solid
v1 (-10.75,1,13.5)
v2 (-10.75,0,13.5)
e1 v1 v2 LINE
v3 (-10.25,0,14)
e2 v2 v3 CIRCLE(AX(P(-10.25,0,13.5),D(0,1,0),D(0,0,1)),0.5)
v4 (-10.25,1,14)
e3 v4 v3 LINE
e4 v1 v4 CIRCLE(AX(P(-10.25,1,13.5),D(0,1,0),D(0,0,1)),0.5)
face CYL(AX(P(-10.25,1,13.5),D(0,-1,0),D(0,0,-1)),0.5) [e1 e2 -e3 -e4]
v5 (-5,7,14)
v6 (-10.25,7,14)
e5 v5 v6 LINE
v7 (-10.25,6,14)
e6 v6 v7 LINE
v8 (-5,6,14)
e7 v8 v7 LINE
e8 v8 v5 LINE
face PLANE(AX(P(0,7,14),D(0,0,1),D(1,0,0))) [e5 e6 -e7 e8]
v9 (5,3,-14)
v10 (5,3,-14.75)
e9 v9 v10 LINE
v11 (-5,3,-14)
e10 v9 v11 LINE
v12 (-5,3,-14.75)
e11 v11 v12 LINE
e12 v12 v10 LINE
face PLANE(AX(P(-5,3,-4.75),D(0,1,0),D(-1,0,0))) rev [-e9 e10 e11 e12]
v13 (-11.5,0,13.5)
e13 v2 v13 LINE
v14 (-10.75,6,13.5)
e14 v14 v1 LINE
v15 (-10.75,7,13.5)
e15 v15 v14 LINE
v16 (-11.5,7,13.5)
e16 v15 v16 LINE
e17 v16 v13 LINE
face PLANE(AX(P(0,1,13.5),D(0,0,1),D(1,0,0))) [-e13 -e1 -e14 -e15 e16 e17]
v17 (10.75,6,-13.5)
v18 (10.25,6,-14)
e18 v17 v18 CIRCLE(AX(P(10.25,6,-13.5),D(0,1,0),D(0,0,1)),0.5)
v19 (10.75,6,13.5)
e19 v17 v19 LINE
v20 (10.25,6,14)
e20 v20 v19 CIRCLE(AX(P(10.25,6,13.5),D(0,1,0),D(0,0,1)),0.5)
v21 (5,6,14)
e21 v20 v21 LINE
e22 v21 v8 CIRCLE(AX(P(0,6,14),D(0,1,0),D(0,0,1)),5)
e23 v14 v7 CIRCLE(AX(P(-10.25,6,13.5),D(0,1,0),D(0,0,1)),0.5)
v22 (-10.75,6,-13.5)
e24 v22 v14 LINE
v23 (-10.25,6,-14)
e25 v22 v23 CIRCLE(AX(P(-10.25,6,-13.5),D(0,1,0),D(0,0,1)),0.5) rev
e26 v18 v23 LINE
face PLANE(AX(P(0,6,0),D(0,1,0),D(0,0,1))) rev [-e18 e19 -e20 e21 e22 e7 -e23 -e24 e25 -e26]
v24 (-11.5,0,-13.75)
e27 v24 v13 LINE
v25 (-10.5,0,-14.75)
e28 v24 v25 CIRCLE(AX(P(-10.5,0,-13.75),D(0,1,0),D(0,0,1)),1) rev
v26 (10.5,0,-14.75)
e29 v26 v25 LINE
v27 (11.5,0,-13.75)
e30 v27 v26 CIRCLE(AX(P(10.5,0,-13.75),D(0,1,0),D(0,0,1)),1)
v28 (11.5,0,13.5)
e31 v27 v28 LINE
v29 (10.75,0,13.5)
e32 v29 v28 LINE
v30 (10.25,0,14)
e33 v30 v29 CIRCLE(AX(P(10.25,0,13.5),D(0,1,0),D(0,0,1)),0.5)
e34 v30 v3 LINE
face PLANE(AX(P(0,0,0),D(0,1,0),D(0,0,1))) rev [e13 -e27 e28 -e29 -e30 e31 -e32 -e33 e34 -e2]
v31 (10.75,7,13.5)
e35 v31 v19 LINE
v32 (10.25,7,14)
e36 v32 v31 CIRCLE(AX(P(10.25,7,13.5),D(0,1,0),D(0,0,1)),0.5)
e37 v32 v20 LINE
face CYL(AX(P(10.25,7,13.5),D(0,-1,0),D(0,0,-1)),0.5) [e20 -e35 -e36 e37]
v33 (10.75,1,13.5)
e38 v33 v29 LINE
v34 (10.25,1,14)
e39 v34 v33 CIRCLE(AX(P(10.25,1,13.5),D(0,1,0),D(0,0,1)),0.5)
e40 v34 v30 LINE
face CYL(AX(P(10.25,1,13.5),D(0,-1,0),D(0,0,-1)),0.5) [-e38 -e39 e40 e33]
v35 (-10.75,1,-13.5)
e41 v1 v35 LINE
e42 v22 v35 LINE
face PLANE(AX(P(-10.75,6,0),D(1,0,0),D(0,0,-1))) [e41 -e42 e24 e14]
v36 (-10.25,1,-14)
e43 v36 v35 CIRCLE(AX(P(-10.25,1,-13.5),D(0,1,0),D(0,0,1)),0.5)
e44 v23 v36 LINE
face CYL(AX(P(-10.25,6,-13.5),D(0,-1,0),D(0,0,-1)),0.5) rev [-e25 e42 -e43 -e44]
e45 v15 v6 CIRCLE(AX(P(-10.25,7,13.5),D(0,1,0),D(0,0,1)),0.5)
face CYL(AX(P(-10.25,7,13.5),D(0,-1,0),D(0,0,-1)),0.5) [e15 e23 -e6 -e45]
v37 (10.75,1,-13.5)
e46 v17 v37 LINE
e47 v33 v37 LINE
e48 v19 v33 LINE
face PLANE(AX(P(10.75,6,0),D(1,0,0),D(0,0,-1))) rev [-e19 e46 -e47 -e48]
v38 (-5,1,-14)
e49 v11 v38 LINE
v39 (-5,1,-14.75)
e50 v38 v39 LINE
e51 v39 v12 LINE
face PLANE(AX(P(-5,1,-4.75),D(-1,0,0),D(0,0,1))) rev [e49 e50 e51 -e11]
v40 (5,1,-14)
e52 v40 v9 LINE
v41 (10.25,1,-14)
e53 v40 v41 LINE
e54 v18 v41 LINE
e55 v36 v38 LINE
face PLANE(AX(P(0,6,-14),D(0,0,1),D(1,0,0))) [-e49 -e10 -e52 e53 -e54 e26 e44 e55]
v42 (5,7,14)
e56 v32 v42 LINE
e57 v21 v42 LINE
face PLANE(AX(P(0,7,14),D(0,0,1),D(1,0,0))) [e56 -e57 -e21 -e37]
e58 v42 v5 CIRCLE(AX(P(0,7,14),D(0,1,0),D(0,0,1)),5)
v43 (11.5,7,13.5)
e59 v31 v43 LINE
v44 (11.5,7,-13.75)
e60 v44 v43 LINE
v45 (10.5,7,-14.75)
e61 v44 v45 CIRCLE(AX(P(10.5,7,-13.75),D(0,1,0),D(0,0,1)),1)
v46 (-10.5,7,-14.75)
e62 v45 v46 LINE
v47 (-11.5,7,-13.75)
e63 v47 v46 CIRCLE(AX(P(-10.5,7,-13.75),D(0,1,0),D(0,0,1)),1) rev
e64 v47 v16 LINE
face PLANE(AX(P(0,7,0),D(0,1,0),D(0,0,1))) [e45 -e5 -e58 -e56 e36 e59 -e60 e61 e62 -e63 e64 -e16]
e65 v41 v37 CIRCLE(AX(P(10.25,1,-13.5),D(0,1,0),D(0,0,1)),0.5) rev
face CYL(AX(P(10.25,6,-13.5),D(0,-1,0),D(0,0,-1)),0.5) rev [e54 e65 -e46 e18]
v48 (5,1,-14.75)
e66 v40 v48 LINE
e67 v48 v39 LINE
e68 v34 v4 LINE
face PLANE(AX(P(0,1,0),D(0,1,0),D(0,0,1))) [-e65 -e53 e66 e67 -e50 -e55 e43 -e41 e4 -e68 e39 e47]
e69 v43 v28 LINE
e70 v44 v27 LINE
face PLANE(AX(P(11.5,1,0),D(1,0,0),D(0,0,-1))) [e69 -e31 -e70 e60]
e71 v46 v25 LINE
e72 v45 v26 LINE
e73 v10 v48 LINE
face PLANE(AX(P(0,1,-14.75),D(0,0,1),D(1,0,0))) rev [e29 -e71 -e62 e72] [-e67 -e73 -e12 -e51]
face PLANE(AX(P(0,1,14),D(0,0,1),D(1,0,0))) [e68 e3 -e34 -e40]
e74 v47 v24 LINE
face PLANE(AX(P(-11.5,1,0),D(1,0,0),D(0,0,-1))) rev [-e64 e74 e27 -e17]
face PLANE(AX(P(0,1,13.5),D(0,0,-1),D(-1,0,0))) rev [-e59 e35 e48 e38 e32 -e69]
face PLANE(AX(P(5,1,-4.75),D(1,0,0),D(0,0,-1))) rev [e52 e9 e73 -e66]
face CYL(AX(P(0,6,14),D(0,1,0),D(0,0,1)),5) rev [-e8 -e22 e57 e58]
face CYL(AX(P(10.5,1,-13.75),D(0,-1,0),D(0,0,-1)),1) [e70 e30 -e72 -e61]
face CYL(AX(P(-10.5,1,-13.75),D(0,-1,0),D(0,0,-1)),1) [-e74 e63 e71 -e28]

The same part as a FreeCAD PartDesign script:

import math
import FreeCAD as App
import Part
import Sketcher
from FreeCAD import Vector
Q = App.Units.Quantity


def add_polygon(sketch, points):
    """Adds a closed chain of lines whose ends are joined by coincident constraints."""
    first, n = sketch.GeometryCount, len(points)
    for a, b in zip(points, points[1:] + points[:1]):
        sketch.addGeometry(Part.LineSegment(App.Vector(*a, 0), App.Vector(*b, 0)), False)
    for i in range(n):
        sketch.addConstraint(Sketcher.Constraint("Coincident", first + i, 2, first + (i + 1) % n, 1))

doc = App.newDocument("Part")
body = doc.addObject("PartDesign::Body", "Body")

# Sketch on XZ plane
sketch1 = body.newObject("Sketcher::SketchObject", "Sketch")
sketch1.AttachmentSupport = (doc.getObject("XZ_Plane"), [""])
sketch1.MapMode = "FlatFace"
sketch1.addGeometry(Part.LineSegment(Vector(-11.5, 13.5, 0), Vector(-10.75, 13.5, 0)), False)
sketch1.addGeometry(Part.ArcOfCircle(Part.Circle(Vector(-10.25, 13.5, 0), Vector(0, 0, 1), 0.5), math.radians(90), math.radians(180)), False)
sketch1.addGeometry(Part.LineSegment(Vector(-10.25, 14, 0), Vector(10.25, 14, 0)), False)
sketch1.addGeometry(Part.ArcOfCircle(Part.Circle(Vector(10.25, 13.5, 0), Vector(0, 0, 1), 0.5), math.radians(0), math.radians(90)), False)
sketch1.addGeometry(Part.LineSegment(Vector(10.75, 13.5, 0), Vector(11.5, 13.5, 0)), False)
sketch1.addGeometry(Part.LineSegment(Vector(11.5, 13.5, 0), Vector(11.5, -13.75, 0)), False)
sketch1.addGeometry(Part.ArcOfCircle(Part.Circle(Vector(10.5, -13.75, 0), Vector(0, 0, 1), 1), math.radians(-90), math.radians(0)), False)
sketch1.addGeometry(Part.LineSegment(Vector(10.5, -14.75, 0), Vector(-10.5, -14.75, 0)), False)
sketch1.addGeometry(Part.ArcOfCircle(Part.Circle(Vector(-10.5, -13.75, 0), Vector(0, 0, 1), 1), math.radians(-180), math.radians(-90)), False)
sketch1.addGeometry(Part.LineSegment(Vector(-11.5, -13.75, 0), Vector(-11.5, 13.5, 0)), False)
sketch1.addConstraint(Sketcher.Constraint("Coincident", 0, 2, 1, 2))
sketch1.addConstraint(Sketcher.Constraint("Tangent", 1, 1, 2, 1))
sketch1.addConstraint(Sketcher.Constraint("Tangent", 2, 2, 3, 2))
sketch1.addConstraint(Sketcher.Constraint("Coincident", 3, 1, 4, 1))
sketch1.addConstraint(Sketcher.Constraint("Coincident", 4, 2, 5, 1))
sketch1.addConstraint(Sketcher.Constraint("Tangent", 5, 2, 6, 2))
sketch1.addConstraint(Sketcher.Constraint("Tangent", 6, 1, 7, 1))
sketch1.addConstraint(Sketcher.Constraint("Tangent", 7, 2, 8, 2))
sketch1.addConstraint(Sketcher.Constraint("Tangent", 8, 1, 9, 1))
sketch1.addConstraint(Sketcher.Constraint("Coincident", 9, 2, 0, 1))
sketch1.addConstraint(Sketcher.Constraint("Horizontal", 0))
sketch1.addConstraint(Sketcher.Constraint("Horizontal", 2))
sketch1.addConstraint(Sketcher.Constraint("Horizontal", 4))
sketch1.addConstraint(Sketcher.Constraint("Vertical", 5))
sketch1.addConstraint(Sketcher.Constraint("Horizontal", 7))
sketch1.addConstraint(Sketcher.Constraint("Vertical", 9))
sketch1.addConstraint(Sketcher.Constraint("Equal", 1, 3))
sketch1.addConstraint(Sketcher.Constraint("Equal", 6, 8))
sketch1.addConstraint(Sketcher.Constraint("Symmetric", 0, 2, 3, 1, -2))
sketch1.addConstraint(Sketcher.Constraint("Horizontal", 3, 3, 0, 2))
sketch1.addConstraint(Sketcher.Constraint("Equal", 0, 4))
sketch1.addConstraint(Sketcher.Constraint("Radius", 6, Q("1 mm")))
sketch1.addConstraint(Sketcher.Constraint("Radius", 1, Q("0.5 mm")))
sketch1.addConstraint(Sketcher.Constraint("DistanceX", 7, 2, 7, 1, Q("21 mm")))
sketch1.addConstraint(Sketcher.Constraint("DistanceX", 2, 1, 2, 2, Q("20.5 mm")))
sketch1.addConstraint(Sketcher.Constraint("DistanceY", -1, 1, 1, 1, Q("14 mm")))
sketch1.addConstraint(Sketcher.Constraint("DistanceY", 5, 2, 5, 1, Q("27.25 mm")))
pad1 = body.newObject("PartDesign::Pad", "Pad")
pad1.Profile = sketch1
pad1.Length = 1
pad1.Reversed = True

# Sketch on XZ plane
sketch2 = body.newObject("Sketcher::SketchObject", "Sketch001")
sketch2.AttachmentSupport = (doc.getObject("XZ_Plane"), [""])
sketch2.MapMode = "FlatFace"
sketch2.addGeometry(Part.LineSegment(Vector(-11.5, 13.5, 0), Vector(-10.75, 13.5, 0)), False)
sketch2.addGeometry(Part.LineSegment(Vector(-10.75, 13.5, 0), Vector(-10.75, -13.5, 0)), False)
sketch2.addGeometry(Part.ArcOfCircle(Part.Circle(Vector(-10.25, -13.5, 0), Vector(0, 0, 1), 0.5), math.radians(180), math.radians(270)), False)
sketch2.addGeometry(Part.LineSegment(Vector(-10.25, -14, 0), Vector(10.25, -14, 0)), False)
sketch2.addGeometry(Part.ArcOfCircle(Part.Circle(Vector(10.25, -13.5, 0), Vector(0, 0, 1), 0.5), math.radians(-90), math.radians(0)), False)
sketch2.addGeometry(Part.LineSegment(Vector(10.75, -13.5, 0), Vector(10.75, 13.5, 0)), False)
sketch2.addGeometry(Part.LineSegment(Vector(10.75, 13.5, 0), Vector(11.5, 13.5, 0)), False)
sketch2.addGeometry(Part.LineSegment(Vector(11.5, 13.5, 0), Vector(11.5, -13.75, 0)), False)
sketch2.addGeometry(Part.ArcOfCircle(Part.Circle(Vector(10.5, -13.75, 0), Vector(0, 0, 1), 1), math.radians(-90), math.radians(0)), False)
sketch2.addGeometry(Part.LineSegment(Vector(10.5, -14.75, 0), Vector(-10.5, -14.75, 0)), False)
sketch2.addGeometry(Part.ArcOfCircle(Part.Circle(Vector(-10.5, -13.75, 0), Vector(0, 0, 1), 1), math.radians(-180), math.radians(-90)), False)
sketch2.addGeometry(Part.LineSegment(Vector(-11.5, -13.75, 0), Vector(-11.5, 13.5, 0)), False)
sketch2.addConstraint(Sketcher.Constraint("Coincident", 0, 2, 1, 1))
sketch2.addConstraint(Sketcher.Constraint("Tangent", 1, 2, 2, 1))
sketch2.addConstraint(Sketcher.Constraint("Tangent", 2, 2, 3, 1))
sketch2.addConstraint(Sketcher.Constraint("Tangent", 3, 2, 4, 1))
sketch2.addConstraint(Sketcher.Constraint("Tangent", 4, 2, 5, 1))
sketch2.addConstraint(Sketcher.Constraint("Coincident", 5, 2, 6, 1))
sketch2.addConstraint(Sketcher.Constraint("Coincident", 6, 2, 7, 1))
sketch2.addConstraint(Sketcher.Constraint("Tangent", 7, 2, 8, 2))
sketch2.addConstraint(Sketcher.Constraint("Tangent", 8, 1, 9, 1))
sketch2.addConstraint(Sketcher.Constraint("Tangent", 9, 2, 10, 2))
sketch2.addConstraint(Sketcher.Constraint("Tangent", 10, 1, 11, 1))
sketch2.addConstraint(Sketcher.Constraint("Coincident", 11, 2, 0, 1))
sketch2.addConstraint(Sketcher.Constraint("Horizontal", 0))
sketch2.addConstraint(Sketcher.Constraint("Vertical", 1))
sketch2.addConstraint(Sketcher.Constraint("Horizontal", 3))
sketch2.addConstraint(Sketcher.Constraint("Vertical", 5))
sketch2.addConstraint(Sketcher.Constraint("Horizontal", 6))
sketch2.addConstraint(Sketcher.Constraint("Vertical", 7))
sketch2.addConstraint(Sketcher.Constraint("Horizontal", 9))
sketch2.addConstraint(Sketcher.Constraint("Vertical", 11))
sketch2.addConstraint(Sketcher.Constraint("Equal", 2, 4))
sketch2.addConstraint(Sketcher.Constraint("Equal", 8, 10))
sketch2.addConstraint(Sketcher.Constraint("Symmetric", 0, 2, 4, 2, -1, 1))
sketch2.addConstraint(Sketcher.Constraint("Symmetric", 6, 2, 11, 2, -2))
sketch2.addConstraint(Sketcher.Constraint("Radius", 8, Q("1 mm")))
sketch2.addConstraint(Sketcher.Constraint("Radius", 2, Q("0.5 mm")))
sketch2.addConstraint(Sketcher.Constraint("DistanceX", 9, 2, 9, 1, Q("21 mm")))
sketch2.addConstraint(Sketcher.Constraint("DistanceY", 1, 2, 1, 1, Q("27 mm")))
sketch2.addConstraint(Sketcher.Constraint("DistanceX", 3, 1, 3, 2, Q("20.5 mm")))
sketch2.addConstraint(Sketcher.Constraint("DistanceY", 7, 2, 7, 1, Q("27.25 mm")))
pad2 = body.newObject("PartDesign::Pad", "Pad001")
pad2.Profile = sketch2
pad2.Length = 6
pad2.Reversed = True

# Sketch on XZ plane
sketch3 = body.newObject("Sketcher::SketchObject", "Sketch002")
sketch3.AttachmentSupport = (doc.getObject("XZ_Plane"), [""])
sketch3.MapMode = "FlatFace"
sketch3.AttachmentOffset = App.Placement(Vector(0, 0, -6), App.Rotation())
sketch3.addGeometry(Part.LineSegment(Vector(-11.5, 13.5, 0), Vector(-10.75, 13.5, 0)), False)
sketch3.addGeometry(Part.ArcOfCircle(Part.Circle(Vector(-10.25, 13.5, 0), Vector(0, 0, 1), 0.5), math.radians(90), math.radians(180)), False)
sketch3.addGeometry(Part.LineSegment(Vector(-10.25, 14, 0), Vector(10.25, 14, 0)), False)
sketch3.addGeometry(Part.ArcOfCircle(Part.Circle(Vector(10.25, 13.5, 0), Vector(0, 0, 1), 0.5), math.radians(0), math.radians(90)), False)
sketch3.addGeometry(Part.LineSegment(Vector(10.75, 13.5, 0), Vector(11.5, 13.5, 0)), False)
sketch3.addGeometry(Part.LineSegment(Vector(11.5, 13.5, 0), Vector(11.5, -13.75, 0)), False)
sketch3.addGeometry(Part.ArcOfCircle(Part.Circle(Vector(10.5, -13.75, 0), Vector(0, 0, 1), 1), math.radians(-90), math.radians(0)), False)
sketch3.addGeometry(Part.LineSegment(Vector(10.5, -14.75, 0), Vector(-10.5, -14.75, 0)), False)
sketch3.addGeometry(Part.ArcOfCircle(Part.Circle(Vector(-10.5, -13.75, 0), Vector(0, 0, 1), 1), math.radians(-180), math.radians(-90)), False)
sketch3.addGeometry(Part.LineSegment(Vector(-11.5, -13.75, 0), Vector(-11.5, 13.5, 0)), False)
sketch3.addConstraint(Sketcher.Constraint("Coincident", 0, 2, 1, 2))
sketch3.addConstraint(Sketcher.Constraint("Tangent", 1, 1, 2, 1))
sketch3.addConstraint(Sketcher.Constraint("Tangent", 2, 2, 3, 2))
sketch3.addConstraint(Sketcher.Constraint("Coincident", 3, 1, 4, 1))
sketch3.addConstraint(Sketcher.Constraint("Coincident", 4, 2, 5, 1))
sketch3.addConstraint(Sketcher.Constraint("Tangent", 5, 2, 6, 2))
sketch3.addConstraint(Sketcher.Constraint("Tangent", 6, 1, 7, 1))
sketch3.addConstraint(Sketcher.Constraint("Tangent", 7, 2, 8, 2))
sketch3.addConstraint(Sketcher.Constraint("Tangent", 8, 1, 9, 1))
sketch3.addConstraint(Sketcher.Constraint("Coincident", 9, 2, 0, 1))
sketch3.addConstraint(Sketcher.Constraint("Horizontal", 0))
sketch3.addConstraint(Sketcher.Constraint("Horizontal", 2))
sketch3.addConstraint(Sketcher.Constraint("Horizontal", 4))
sketch3.addConstraint(Sketcher.Constraint("Vertical", 5))
sketch3.addConstraint(Sketcher.Constraint("Horizontal", 7))
sketch3.addConstraint(Sketcher.Constraint("Vertical", 9))
sketch3.addConstraint(Sketcher.Constraint("Equal", 1, 3))
sketch3.addConstraint(Sketcher.Constraint("Equal", 6, 8))
sketch3.addConstraint(Sketcher.Constraint("Symmetric", 0, 2, 3, 1, -2))
sketch3.addConstraint(Sketcher.Constraint("Horizontal", 3, 3, 0, 2))
sketch3.addConstraint(Sketcher.Constraint("Equal", 0, 4))
sketch3.addConstraint(Sketcher.Constraint("Radius", 6, Q("1 mm")))
sketch3.addConstraint(Sketcher.Constraint("Radius", 1, Q("0.5 mm")))
sketch3.addConstraint(Sketcher.Constraint("DistanceX", 7, 2, 7, 1, Q("21 mm")))
sketch3.addConstraint(Sketcher.Constraint("DistanceX", 2, 1, 2, 2, Q("20.5 mm")))
sketch3.addConstraint(Sketcher.Constraint("DistanceY", -1, 1, 1, 1, Q("14 mm")))
sketch3.addConstraint(Sketcher.Constraint("DistanceY", 5, 2, 5, 1, Q("27.25 mm")))
pad3 = body.newObject("PartDesign::Pad", "Pad002")
pad3.Profile = sketch3
pad3.Length = 1
pad3.Reversed = True

# Sketch on XZ plane
sketch4 = body.newObject("Sketcher::SketchObject", "Sketch003")
sketch4.AttachmentSupport = (doc.getObject("XZ_Plane"), [""])
sketch4.MapMode = "FlatFace"
sketch4.AttachmentOffset = App.Placement(Vector(0, 0, -7), App.Rotation())
sketch4.addGeometry(Part.LineSegment(Vector(-5, 14, 0), Vector(5, 14, 0)), False)
sketch4.addGeometry(Part.ArcOfCircle(Part.Circle(Vector(0, 14, 0), Vector(0, 0, 1), 5), math.radians(180), math.radians(360)), False)
sketch4.addConstraint(Sketcher.Constraint("Coincident", 0, 1, 1, 1))
sketch4.addConstraint(Sketcher.Constraint("Coincident", 1, 2, 0, 2))
sketch4.addConstraint(Sketcher.Constraint("Horizontal", 0))
sketch4.addConstraint(Sketcher.Constraint("PointOnObject", 1, 3, -2))
sketch4.addConstraint(Sketcher.Constraint("Horizontal", 1, 3, 0, 1))
sketch4.addConstraint(Sketcher.Constraint("Radius", 1, Q("5 mm")))
sketch4.addConstraint(Sketcher.Constraint("DistanceY", -1, 1, 1, 3, Q("14 mm")))
pocket1 = body.newObject("PartDesign::Pocket", "Pocket")
pocket1.Profile = sketch4
pocket1.Length = 1
pocket1.Reversed = True

# Sketch on XY plane
sketch5 = body.newObject("Sketcher::SketchObject", "Sketch004")
sketch5.AttachmentSupport = (doc.getObject("XY_Plane"), [""])
sketch5.MapMode = "FlatFace"
sketch5.AttachmentOffset = App.Placement(Vector(0, 0, -14.75), App.Rotation())
add_polygon(sketch5, [(5, 3), (5, 1), (-5, 1), (-5, 3)])  # lines 0-3
sketch5.addConstraint(Sketcher.Constraint("Vertical", 0))
sketch5.addConstraint(Sketcher.Constraint("Horizontal", 1))
sketch5.addConstraint(Sketcher.Constraint("Vertical", 2))
sketch5.addConstraint(Sketcher.Constraint("Horizontal", 3))
sketch5.addConstraint(Sketcher.Constraint("DistanceX", 1, 2, 1, 1, Q("10 mm")))
sketch5.addConstraint(Sketcher.Constraint("DistanceY", 0, 2, 0, 1, Q("2 mm")))
sketch5.addConstraint(Sketcher.Constraint("DistanceX", -1, 1, 0, 2, Q("5 mm")))
sketch5.addConstraint(Sketcher.Constraint("DistanceY", -1, 1, 0, 2, Q("1 mm")))
pocket2 = body.newObject("PartDesign::Pocket", "Pocket001")
pocket2.Profile = sketch5
pocket2.Length = 10
pocket2.Reversed = True

doc.recompute()
